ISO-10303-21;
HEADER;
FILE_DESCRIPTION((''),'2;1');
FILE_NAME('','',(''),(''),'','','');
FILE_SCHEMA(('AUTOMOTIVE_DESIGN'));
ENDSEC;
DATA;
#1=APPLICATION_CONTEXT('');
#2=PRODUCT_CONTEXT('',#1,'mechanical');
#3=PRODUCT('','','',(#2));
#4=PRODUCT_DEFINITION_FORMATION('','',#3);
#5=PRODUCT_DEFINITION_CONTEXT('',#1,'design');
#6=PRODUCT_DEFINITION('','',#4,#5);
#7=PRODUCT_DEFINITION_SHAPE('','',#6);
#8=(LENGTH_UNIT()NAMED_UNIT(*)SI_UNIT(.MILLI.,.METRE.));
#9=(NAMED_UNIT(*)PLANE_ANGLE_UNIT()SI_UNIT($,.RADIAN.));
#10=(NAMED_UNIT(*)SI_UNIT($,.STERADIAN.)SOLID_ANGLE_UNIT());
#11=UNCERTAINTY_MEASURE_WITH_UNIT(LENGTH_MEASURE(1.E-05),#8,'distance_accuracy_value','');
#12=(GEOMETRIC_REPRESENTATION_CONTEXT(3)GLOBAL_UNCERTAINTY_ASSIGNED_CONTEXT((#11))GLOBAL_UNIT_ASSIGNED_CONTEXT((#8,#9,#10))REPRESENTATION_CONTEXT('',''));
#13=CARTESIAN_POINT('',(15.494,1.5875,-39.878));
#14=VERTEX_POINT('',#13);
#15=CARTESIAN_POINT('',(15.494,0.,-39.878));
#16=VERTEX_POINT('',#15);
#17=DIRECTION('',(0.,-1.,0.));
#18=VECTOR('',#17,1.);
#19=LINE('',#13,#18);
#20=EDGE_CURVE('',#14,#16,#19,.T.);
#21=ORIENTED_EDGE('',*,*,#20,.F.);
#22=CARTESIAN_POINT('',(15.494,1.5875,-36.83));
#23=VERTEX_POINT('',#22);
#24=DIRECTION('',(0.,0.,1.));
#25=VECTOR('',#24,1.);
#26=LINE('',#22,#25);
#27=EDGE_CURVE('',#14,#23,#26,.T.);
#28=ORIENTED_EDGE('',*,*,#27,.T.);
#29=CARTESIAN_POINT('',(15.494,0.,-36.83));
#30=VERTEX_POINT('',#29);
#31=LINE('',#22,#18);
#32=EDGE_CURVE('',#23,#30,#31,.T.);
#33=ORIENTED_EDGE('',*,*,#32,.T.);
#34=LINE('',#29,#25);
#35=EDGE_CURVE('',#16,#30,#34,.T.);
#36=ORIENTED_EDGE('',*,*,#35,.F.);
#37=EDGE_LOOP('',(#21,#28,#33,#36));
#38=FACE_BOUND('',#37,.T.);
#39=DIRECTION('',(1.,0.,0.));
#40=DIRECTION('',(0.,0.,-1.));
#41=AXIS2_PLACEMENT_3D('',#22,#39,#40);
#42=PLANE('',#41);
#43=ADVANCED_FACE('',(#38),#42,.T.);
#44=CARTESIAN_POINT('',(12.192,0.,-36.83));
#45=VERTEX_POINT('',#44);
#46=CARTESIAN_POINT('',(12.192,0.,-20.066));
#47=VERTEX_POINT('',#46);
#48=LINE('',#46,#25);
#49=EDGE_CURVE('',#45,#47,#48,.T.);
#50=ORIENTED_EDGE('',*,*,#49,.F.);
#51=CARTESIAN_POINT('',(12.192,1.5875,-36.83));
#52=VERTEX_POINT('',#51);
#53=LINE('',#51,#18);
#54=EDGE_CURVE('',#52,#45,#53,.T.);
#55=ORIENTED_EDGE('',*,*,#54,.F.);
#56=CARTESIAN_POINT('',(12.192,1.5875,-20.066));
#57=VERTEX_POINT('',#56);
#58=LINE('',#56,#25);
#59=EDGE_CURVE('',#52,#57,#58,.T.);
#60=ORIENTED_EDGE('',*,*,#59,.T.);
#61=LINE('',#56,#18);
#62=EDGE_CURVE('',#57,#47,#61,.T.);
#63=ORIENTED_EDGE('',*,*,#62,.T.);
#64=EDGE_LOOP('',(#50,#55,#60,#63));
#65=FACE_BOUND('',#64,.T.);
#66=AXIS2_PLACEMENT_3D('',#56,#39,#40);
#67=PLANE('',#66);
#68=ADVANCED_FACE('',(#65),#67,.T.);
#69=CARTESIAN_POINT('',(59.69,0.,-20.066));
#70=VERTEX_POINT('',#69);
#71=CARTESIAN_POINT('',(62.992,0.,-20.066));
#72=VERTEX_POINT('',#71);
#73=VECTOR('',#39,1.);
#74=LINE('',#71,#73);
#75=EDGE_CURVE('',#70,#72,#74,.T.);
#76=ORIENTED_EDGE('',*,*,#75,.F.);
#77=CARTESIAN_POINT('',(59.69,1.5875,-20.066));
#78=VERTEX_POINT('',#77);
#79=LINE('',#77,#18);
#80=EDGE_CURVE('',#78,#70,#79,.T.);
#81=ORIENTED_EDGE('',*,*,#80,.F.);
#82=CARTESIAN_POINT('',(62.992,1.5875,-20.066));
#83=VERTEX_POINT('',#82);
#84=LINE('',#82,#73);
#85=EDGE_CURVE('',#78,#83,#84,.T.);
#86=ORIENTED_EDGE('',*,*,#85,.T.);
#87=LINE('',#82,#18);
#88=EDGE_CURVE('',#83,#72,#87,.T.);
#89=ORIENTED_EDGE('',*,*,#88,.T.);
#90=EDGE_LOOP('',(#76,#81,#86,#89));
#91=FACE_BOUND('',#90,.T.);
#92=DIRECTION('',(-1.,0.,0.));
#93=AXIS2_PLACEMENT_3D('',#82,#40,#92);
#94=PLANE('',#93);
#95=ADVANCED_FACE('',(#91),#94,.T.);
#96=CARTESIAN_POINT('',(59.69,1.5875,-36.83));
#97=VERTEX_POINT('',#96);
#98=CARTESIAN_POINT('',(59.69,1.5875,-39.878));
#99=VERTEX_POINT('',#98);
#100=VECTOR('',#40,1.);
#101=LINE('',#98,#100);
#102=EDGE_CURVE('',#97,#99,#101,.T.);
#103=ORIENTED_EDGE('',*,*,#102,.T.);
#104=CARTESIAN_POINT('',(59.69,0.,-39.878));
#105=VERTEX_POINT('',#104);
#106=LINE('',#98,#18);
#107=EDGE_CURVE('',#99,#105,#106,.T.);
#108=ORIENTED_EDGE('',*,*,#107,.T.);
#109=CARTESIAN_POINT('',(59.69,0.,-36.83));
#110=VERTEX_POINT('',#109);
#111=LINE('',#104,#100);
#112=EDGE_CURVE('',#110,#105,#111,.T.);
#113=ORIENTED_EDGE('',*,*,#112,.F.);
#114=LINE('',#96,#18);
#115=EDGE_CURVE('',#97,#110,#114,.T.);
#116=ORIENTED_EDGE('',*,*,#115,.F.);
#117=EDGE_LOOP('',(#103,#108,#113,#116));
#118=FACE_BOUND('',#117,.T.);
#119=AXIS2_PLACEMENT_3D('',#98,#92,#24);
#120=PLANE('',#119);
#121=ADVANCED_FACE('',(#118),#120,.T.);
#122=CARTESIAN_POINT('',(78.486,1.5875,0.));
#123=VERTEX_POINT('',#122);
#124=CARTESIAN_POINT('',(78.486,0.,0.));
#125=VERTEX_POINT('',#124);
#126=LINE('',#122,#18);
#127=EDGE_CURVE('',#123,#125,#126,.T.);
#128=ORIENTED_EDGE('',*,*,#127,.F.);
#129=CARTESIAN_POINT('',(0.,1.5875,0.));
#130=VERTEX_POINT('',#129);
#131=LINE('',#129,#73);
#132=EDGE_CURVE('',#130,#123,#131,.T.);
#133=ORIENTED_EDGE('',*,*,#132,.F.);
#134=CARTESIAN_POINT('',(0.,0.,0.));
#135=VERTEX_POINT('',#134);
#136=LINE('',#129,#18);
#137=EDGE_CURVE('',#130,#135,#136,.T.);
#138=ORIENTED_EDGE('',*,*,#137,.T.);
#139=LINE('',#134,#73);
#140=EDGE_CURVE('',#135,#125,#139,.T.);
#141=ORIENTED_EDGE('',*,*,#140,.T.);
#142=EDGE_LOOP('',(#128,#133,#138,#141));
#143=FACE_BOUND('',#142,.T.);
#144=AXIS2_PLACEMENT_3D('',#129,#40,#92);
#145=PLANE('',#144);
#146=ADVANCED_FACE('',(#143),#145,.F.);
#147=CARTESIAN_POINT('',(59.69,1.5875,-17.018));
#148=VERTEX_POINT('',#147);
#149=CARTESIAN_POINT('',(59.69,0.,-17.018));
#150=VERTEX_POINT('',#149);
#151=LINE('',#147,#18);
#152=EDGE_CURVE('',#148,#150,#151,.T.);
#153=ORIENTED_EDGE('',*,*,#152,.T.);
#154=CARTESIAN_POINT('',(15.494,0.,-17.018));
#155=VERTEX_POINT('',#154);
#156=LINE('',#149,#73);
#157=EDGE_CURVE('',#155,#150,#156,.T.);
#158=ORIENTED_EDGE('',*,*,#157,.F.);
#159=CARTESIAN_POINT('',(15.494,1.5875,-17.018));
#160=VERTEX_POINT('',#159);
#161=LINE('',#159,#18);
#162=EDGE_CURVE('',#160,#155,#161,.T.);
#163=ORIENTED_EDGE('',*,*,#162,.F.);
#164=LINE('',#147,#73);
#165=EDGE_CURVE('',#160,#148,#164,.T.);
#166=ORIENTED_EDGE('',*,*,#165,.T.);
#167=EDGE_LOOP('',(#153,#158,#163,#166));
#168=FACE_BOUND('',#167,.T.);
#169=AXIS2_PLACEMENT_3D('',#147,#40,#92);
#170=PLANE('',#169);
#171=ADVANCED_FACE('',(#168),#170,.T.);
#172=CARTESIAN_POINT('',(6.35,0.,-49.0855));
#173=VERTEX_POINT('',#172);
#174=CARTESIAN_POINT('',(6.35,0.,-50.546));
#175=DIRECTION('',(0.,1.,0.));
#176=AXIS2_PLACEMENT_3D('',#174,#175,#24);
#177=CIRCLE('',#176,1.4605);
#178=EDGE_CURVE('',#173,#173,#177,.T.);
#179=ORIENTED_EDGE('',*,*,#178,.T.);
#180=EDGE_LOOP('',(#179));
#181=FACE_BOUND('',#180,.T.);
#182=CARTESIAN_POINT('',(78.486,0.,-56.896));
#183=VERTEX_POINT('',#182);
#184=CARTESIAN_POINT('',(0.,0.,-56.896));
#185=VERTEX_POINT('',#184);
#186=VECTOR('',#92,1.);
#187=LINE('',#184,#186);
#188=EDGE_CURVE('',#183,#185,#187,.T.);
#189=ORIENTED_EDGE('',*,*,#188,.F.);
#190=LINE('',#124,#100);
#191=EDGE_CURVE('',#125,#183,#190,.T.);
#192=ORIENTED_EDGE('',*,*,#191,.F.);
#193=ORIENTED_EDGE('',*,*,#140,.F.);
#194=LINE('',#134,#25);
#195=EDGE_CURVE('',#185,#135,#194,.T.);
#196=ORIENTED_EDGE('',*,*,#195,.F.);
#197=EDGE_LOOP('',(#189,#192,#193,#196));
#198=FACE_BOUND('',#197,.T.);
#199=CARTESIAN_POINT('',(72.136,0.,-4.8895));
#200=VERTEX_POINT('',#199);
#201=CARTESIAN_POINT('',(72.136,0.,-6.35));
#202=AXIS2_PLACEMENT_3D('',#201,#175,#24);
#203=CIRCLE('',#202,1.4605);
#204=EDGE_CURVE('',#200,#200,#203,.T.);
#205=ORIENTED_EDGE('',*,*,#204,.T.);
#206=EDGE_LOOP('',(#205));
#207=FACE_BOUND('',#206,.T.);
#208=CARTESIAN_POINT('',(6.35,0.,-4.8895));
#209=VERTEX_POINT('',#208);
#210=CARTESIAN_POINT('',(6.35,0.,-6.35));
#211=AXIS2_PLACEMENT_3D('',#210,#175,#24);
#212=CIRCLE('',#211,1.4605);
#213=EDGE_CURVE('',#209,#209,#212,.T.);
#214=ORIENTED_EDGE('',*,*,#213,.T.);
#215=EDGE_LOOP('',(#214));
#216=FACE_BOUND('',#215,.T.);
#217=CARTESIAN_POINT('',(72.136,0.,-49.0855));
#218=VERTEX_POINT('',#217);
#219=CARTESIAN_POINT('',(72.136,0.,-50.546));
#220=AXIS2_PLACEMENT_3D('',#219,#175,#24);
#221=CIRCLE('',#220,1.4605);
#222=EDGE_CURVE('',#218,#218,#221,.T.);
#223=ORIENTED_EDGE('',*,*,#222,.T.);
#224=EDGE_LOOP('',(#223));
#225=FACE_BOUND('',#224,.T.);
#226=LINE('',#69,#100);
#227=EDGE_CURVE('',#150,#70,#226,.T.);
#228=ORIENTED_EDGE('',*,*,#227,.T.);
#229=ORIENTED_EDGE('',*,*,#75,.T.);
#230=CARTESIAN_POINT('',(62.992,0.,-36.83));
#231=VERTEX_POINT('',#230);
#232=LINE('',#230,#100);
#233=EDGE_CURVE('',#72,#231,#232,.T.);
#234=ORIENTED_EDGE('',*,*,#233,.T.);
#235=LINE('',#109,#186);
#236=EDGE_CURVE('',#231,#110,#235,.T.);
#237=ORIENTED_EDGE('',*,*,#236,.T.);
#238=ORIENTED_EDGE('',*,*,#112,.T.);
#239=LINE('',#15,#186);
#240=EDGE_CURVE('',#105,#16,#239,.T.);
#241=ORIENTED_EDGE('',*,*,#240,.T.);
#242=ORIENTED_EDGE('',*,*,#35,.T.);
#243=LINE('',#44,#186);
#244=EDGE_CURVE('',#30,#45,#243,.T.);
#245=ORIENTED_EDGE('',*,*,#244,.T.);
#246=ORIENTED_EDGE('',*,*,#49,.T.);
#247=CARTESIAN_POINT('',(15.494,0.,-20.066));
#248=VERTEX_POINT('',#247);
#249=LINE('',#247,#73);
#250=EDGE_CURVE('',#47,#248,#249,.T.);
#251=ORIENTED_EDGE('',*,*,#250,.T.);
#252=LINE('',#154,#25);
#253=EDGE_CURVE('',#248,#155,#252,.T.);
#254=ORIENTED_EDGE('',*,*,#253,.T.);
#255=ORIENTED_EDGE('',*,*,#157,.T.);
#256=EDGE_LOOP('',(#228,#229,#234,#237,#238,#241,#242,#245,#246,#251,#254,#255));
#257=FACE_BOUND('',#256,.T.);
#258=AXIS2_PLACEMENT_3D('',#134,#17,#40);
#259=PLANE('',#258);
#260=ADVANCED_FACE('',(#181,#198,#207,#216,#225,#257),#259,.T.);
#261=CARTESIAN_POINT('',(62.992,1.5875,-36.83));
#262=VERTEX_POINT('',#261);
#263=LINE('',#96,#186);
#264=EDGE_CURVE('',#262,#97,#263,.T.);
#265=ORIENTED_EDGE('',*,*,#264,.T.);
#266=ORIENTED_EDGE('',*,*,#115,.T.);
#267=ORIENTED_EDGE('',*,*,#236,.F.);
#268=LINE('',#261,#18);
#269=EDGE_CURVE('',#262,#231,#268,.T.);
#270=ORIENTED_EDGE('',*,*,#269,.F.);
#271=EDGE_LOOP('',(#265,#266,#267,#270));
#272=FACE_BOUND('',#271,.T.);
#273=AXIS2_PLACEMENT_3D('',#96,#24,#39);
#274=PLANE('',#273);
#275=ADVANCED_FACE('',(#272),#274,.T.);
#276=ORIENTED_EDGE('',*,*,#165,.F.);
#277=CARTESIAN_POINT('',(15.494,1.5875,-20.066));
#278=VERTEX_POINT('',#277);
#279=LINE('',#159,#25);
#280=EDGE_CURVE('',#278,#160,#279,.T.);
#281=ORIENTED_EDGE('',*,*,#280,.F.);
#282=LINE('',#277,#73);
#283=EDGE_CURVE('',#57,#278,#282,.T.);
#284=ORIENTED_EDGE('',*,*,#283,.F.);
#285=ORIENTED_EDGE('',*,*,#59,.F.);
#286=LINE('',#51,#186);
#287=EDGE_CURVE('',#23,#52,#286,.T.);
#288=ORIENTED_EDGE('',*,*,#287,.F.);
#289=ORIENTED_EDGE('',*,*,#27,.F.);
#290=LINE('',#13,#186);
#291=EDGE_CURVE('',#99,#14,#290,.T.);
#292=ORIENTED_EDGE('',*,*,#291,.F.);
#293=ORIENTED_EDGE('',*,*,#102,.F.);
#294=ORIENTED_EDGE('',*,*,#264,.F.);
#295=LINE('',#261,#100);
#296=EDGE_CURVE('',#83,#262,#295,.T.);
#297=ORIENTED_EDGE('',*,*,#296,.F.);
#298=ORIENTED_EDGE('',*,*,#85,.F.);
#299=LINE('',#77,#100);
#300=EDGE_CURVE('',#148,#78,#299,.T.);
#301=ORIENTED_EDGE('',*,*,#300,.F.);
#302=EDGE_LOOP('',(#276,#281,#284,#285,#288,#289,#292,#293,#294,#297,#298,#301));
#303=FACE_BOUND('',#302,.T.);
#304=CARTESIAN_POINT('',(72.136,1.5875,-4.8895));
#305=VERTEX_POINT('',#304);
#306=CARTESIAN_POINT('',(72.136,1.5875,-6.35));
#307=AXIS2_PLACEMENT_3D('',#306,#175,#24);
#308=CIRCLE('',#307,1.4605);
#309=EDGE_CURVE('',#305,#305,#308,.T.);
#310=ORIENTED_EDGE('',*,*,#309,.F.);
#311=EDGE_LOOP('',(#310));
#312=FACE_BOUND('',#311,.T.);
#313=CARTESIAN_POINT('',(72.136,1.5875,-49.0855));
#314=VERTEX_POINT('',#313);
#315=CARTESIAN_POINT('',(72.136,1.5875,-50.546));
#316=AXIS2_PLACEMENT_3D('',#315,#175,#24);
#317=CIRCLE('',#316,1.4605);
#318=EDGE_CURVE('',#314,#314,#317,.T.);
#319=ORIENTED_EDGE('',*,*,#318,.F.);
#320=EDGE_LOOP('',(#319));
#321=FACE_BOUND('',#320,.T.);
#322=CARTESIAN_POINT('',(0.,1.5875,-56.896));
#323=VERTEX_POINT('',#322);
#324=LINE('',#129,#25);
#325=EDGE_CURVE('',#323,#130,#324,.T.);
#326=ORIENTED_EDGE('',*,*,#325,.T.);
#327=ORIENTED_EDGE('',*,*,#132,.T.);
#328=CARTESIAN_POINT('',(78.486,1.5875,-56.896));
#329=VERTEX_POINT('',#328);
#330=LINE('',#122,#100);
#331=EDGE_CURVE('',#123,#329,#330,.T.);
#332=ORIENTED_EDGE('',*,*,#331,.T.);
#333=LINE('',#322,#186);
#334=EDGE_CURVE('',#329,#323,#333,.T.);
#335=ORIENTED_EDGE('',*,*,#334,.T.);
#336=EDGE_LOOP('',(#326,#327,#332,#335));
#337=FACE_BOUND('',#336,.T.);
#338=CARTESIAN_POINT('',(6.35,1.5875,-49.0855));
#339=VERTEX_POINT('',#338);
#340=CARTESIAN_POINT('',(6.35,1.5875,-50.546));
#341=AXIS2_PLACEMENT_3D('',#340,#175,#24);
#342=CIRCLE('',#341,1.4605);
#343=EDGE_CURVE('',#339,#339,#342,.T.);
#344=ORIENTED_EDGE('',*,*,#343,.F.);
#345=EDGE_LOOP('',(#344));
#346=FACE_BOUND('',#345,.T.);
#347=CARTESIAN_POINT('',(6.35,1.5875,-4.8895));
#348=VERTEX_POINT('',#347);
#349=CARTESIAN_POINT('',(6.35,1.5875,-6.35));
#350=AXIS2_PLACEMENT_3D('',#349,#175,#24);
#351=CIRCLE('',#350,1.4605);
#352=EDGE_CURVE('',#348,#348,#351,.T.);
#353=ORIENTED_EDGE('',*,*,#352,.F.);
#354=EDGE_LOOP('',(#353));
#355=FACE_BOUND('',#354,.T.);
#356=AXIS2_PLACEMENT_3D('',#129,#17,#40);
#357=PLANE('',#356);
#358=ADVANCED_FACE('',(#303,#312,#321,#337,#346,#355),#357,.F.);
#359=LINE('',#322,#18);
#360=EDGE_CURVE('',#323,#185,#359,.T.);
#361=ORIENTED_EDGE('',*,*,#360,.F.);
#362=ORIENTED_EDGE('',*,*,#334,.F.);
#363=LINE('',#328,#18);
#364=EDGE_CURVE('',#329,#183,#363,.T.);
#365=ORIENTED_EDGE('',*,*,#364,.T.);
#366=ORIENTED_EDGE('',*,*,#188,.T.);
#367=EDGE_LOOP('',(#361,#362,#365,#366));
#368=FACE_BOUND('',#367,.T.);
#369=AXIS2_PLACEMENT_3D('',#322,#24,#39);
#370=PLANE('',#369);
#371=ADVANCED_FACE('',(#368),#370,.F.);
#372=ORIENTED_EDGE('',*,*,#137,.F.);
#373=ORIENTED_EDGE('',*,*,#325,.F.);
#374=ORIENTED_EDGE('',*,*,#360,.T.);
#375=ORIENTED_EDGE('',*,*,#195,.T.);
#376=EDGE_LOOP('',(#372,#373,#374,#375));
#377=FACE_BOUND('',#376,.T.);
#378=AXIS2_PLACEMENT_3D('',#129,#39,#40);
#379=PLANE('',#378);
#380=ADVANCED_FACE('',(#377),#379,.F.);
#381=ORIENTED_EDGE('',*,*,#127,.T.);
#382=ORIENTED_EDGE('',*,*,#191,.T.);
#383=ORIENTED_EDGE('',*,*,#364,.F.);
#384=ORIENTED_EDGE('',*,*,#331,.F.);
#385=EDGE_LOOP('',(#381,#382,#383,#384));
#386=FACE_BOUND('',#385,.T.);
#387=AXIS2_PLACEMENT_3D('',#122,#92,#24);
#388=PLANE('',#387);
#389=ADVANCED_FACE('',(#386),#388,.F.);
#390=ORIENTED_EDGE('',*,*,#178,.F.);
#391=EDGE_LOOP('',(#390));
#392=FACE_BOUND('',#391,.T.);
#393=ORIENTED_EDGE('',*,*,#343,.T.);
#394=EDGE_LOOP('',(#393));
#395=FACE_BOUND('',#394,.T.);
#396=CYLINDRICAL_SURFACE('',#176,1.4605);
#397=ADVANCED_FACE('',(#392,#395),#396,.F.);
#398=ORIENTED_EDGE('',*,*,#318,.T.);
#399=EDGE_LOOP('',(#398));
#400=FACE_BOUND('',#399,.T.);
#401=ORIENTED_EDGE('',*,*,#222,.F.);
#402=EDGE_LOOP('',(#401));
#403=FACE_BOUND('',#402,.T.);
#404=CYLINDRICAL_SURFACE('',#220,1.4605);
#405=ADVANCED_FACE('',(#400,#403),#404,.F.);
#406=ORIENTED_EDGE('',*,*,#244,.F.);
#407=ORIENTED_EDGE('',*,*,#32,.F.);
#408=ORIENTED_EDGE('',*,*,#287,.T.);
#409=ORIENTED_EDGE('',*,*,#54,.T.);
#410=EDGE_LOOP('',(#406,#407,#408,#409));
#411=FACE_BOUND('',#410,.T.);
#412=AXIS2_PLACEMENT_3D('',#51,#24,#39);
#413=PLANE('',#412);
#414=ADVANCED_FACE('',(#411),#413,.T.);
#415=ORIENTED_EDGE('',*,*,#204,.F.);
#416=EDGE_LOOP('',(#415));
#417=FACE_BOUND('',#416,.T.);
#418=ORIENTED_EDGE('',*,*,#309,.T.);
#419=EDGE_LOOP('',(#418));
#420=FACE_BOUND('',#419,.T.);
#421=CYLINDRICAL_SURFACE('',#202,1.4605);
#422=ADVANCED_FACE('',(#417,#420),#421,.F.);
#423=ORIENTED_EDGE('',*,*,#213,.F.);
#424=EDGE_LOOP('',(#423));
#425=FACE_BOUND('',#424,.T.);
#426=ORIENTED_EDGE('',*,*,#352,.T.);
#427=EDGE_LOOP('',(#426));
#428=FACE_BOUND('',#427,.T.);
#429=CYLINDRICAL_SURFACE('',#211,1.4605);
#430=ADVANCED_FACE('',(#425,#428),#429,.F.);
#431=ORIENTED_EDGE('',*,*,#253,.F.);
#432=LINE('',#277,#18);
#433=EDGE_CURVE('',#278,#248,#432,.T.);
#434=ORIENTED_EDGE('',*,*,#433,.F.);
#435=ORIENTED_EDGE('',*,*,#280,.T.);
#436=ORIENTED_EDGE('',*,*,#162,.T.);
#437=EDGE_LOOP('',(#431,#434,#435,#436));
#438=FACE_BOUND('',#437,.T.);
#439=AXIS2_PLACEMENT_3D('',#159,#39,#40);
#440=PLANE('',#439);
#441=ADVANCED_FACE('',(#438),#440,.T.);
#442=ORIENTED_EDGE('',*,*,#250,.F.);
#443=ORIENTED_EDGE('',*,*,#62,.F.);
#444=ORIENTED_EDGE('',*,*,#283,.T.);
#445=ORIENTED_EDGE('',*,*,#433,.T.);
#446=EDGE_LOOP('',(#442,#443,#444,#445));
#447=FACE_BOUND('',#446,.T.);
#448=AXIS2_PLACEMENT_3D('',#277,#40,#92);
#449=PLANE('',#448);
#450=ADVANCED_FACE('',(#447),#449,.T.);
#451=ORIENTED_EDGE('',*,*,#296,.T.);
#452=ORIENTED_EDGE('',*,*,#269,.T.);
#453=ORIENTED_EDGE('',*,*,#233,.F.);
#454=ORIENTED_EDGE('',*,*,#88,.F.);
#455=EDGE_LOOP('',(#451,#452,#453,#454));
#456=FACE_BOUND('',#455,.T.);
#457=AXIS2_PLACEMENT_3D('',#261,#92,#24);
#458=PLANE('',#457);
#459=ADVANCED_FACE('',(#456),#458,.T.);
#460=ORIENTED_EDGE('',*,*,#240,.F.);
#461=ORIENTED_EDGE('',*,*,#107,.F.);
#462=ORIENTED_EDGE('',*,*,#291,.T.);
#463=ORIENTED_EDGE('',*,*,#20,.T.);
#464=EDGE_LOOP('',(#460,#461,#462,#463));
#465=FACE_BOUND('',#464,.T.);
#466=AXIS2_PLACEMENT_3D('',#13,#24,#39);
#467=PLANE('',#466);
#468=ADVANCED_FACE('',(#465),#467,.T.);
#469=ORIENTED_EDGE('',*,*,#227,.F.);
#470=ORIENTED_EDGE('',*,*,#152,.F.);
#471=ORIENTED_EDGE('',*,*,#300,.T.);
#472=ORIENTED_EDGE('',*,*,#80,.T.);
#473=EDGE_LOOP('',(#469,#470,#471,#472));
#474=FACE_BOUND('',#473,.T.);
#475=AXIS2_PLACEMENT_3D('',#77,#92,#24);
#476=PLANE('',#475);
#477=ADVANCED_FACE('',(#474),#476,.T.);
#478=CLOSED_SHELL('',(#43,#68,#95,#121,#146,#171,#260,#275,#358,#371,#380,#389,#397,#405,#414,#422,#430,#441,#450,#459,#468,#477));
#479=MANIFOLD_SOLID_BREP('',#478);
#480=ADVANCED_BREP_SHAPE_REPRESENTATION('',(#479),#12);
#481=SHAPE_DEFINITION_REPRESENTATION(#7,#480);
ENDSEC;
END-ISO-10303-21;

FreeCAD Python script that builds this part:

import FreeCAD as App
import Part
import Sketcher
Q = App.Units.Quantity


def add_polygon(sketch, points):
    """Adds a closed chain of lines whose ends are joined by coincident constraints."""
    first, n = sketch.GeometryCount, len(points)
    for a, b in zip(points, points[1:] + points[:1]):
        sketch.addGeometry(Part.LineSegment(App.Vector(*a, 0), App.Vector(*b, 0)), False)
    for i in range(n):
        sketch.addConstraint(Sketcher.Constraint("Coincident", first + i, 2, first + (i + 1) % n, 1))

doc = App.newDocument("Part")
body = doc.addObject("PartDesign::Body", "Body")

# Sketch on XZ plane
sketch1 = body.newObject("Sketcher::SketchObject", "Sketch")
sketch1.AttachmentSupport = (doc.getObject("XZ_Plane"), [""])
sketch1.MapMode = "FlatFace"
add_polygon(sketch1, [(0, -56.9), (0, 0), (78.5, 0), (78.5, -56.9)])  # lines 0-3
add_polygon(sketch1, [(15.5, -36.8), (15.5, -39.9), (59.7, -39.9), (59.7, -36.8), (63, -36.8), (63, -20.1), (59.7, -20.1), (59.7, -17), (15.5, -17), (15.5, -20.1), (12.2, -20.1), (12.2, -36.8)])  # lines 4-15
sketch1.addConstraint(Sketcher.Constraint("Vertical", 0))
sketch1.addConstraint(Sketcher.Constraint("Horizontal", 1))
sketch1.addConstraint(Sketcher.Constraint("Vertical", 2))
sketch1.addConstraint(Sketcher.Constraint("Horizontal", 3))
sketch1.addConstraint(Sketcher.Constraint("Vertical", 4))
sketch1.addConstraint(Sketcher.Constraint("Horizontal", 5))
sketch1.addConstraint(Sketcher.Constraint("Vertical", 6))
sketch1.addConstraint(Sketcher.Constraint("Horizontal", 7))
sketch1.addConstraint(Sketcher.Constraint("Vertical", 8))
sketch1.addConstraint(Sketcher.Constraint("Horizontal", 9))
sketch1.addConstraint(Sketcher.Constraint("Vertical", 10))
sketch1.addConstraint(Sketcher.Constraint("Horizontal", 11))
sketch1.addConstraint(Sketcher.Constraint("Vertical", 12))
sketch1.addConstraint(Sketcher.Constraint("Horizontal", 13))
sketch1.addConstraint(Sketcher.Constraint("Vertical", 14))
sketch1.addConstraint(Sketcher.Constraint("Horizontal", 15))
sketch1.addConstraint(Sketcher.Constraint("Coincident", 0, 2, -1, 1))
sketch1.addConstraint(Sketcher.Constraint("Horizontal", 9, 2, 12, 2))
sketch1.addConstraint(Sketcher.Constraint("Horizontal", 7, 2, 14, 2))
sketch1.addConstraint(Sketcher.Constraint("Vertical", 6, 2, 9, 2))
sketch1.addConstraint(Sketcher.Constraint("Vertical", 4, 2, 11, 2))
sketch1.addConstraint(Sketcher.Constraint("Equal", 9, 13))
sketch1.addConstraint(Sketcher.Constraint("Equal", 6, 10))
sketch1.addConstraint(Sketcher.Constraint("DistanceX", 1, 1, 1, 2, Q("3.09 in")))
sketch1.addConstraint(Sketcher.Constraint("DistanceX", 5, 1, 5, 2, Q("1.74 in")))
sketch1.addConstraint(Sketcher.Constraint("DistanceX", 7, 1, 7, 2, Q("0.13 in")))
sketch1.addConstraint(Sketcher.Constraint("DistanceY", 0, 1, 0, 2, Q("2.24 in")))
sketch1.addConstraint(Sketcher.Constraint("DistanceY", 4, 2, 4, 1, Q("0.12 in")))
sketch1.addConstraint(Sketcher.Constraint("DistanceY", 8, 1, 8, 2, Q("0.66 in")))
sketch1.addConstraint(Sketcher.Constraint("DistanceX", -1, 1, 4, 2, Q("0.61 in")))
sketch1.addConstraint(Sketcher.Constraint("DistanceY", 4, 2, -1, 1, Q("1.57 in")))
pad1 = body.newObject("PartDesign::Pad", "Pad")
pad1.Profile = sketch1
pad1.Length = Q("0.0625 in")
pad1.Reversed = True

# Sketch on XZ plane
sketch2 = body.newObject("Sketcher::SketchObject", "Sketch001")
sketch2.AttachmentSupport = (doc.getObject("XZ_Plane"), [""])
sketch2.MapMode = "FlatFace"
sketch2.AttachmentOffset = App.Placement(App.Vector(0, 0, -0.0625 * 25.4), App.Rotation())
sketch2.addGeometry(Part.Circle(App.Vector(6.3, -50.5, 0), App.Vector(0, 0, 1), 1.5), False)
sketch2.addGeometry(Part.Circle(App.Vector(6.3, -6.3, 0), App.Vector(0, 0, 1), 1.5), False)
sketch2.addGeometry(Part.Circle(App.Vector(72.1, -50.5, 0), App.Vector(0, 0, 1), 1.5), False)
sketch2.addGeometry(Part.Circle(App.Vector(72.1, -6.3, 0), App.Vector(0, 0, 1), 1.5), False)
sketch2.addConstraint(Sketcher.Constraint("Equal", 0, 1))
sketch2.addConstraint(Sketcher.Constraint("Equal", 1, 2))
sketch2.addConstraint(Sketcher.Constraint("Equal", 2, 3))
sketch2.addConstraint(Sketcher.Constraint("Horizontal", 0, 3, 2, 3))
sketch2.addConstraint(Sketcher.Constraint("Horizontal", 1, 3, 3, 3))
sketch2.addConstraint(Sketcher.Constraint("Vertical", 0, 3, 1, 3))
sketch2.addConstraint(Sketcher.Constraint("Vertical", 2, 3, 3, 3))
sketch2.addConstraint(Sketcher.Constraint("Diameter", 0, Q("0.115 in")))
sketch2.addConstraint(Sketcher.Constraint("DistanceX", -1, 1, 0, 3, Q("0.25 in")))
sketch2.addConstraint(Sketcher.Constraint("DistanceY", 0, 3, -1, 1, Q("1.99 in")))
sketch2.addConstraint(Sketcher.Constraint("DistanceY", 1, 3, -1, 1, Q("0.25 in")))
sketch2.addConstraint(Sketcher.Constraint("DistanceX", -1, 1, 2, 3, Q("2.84 in")))
pocket1 = body.newObject("PartDesign::Pocket", "Pocket")
pocket1.Profile = sketch2
pocket1.Type = "ThroughAll"
pocket1.Reversed = True

doc.recompute()
